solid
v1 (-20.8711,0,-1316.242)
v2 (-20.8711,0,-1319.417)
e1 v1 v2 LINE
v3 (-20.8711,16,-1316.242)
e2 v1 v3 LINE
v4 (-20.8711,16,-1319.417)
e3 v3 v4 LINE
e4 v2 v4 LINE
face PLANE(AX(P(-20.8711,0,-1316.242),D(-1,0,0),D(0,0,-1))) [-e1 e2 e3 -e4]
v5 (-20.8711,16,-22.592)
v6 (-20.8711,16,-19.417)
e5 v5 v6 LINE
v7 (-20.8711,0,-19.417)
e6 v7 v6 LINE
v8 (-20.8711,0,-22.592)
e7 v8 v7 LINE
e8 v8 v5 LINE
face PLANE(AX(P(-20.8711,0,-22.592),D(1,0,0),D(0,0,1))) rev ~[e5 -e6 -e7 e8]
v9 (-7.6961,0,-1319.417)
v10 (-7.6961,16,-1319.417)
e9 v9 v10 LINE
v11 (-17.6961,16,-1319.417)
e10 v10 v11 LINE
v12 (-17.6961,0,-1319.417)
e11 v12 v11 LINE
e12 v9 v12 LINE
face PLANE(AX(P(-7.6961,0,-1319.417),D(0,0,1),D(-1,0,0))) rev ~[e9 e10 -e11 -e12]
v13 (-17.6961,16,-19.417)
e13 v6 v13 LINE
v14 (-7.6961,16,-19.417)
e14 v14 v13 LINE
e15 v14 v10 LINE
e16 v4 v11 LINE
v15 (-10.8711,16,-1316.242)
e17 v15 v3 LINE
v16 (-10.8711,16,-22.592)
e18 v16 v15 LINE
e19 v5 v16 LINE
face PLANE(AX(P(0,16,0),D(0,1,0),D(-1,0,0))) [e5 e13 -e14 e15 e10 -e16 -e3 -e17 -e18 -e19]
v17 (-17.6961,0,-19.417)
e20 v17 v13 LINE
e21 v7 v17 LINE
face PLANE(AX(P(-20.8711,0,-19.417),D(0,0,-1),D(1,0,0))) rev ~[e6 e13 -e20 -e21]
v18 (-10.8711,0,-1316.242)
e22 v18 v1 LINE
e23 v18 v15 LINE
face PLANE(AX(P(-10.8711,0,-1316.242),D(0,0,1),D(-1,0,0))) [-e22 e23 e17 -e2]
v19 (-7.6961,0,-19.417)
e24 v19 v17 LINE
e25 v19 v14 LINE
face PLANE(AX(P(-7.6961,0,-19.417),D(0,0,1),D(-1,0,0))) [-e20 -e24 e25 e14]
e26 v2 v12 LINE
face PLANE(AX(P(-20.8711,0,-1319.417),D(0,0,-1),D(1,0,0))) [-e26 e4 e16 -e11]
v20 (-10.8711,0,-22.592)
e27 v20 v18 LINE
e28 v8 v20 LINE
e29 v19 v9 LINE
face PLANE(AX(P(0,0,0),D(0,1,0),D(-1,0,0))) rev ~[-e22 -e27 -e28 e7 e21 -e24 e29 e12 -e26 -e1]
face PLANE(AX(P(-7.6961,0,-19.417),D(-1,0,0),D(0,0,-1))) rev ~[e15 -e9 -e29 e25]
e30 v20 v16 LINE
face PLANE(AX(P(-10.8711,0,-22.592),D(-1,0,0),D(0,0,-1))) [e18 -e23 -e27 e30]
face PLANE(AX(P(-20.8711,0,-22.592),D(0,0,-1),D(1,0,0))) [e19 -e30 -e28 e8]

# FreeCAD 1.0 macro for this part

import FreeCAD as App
import Part
import Sketcher
from FreeCAD import Vector
Q = App.Units.Quantity


def add_polygon(sketch, points):
    """Adds a closed chain of lines whose ends are joined by coincident constraints."""
    first, n = sketch.GeometryCount, len(points)
    for a, b in zip(points, points[1:] + points[:1]):
        sketch.addGeometry(Part.LineSegment(App.Vector(*a, 0), App.Vector(*b, 0)), False)
    for i in range(n):
        sketch.addConstraint(Sketcher.Constraint("Coincident", first + i, 2, first + (i + 1) % n, 1))

doc = App.newDocument("Part")
body = doc.addObject("PartDesign::Body", "Body")

# Sketch on XZ plane
sketch1 = body.newObject("Sketcher::SketchObject", "Sketch")
sketch1.AttachmentSupport = (doc.getObject("XZ_Plane"), [""])
sketch1.MapMode = "FlatFace"
add_polygon(sketch1, [(-20.9, -19.4), (-7.7, -19.4), (-7.7, -1319.4), (-20.9, -1319.4), (-20.9, -1316.2), (-10.9, -1316.2), (-10.9, -22.6), (-20.9, -22.6)])  # lines 0-7
sketch1.addConstraint(Sketcher.Constraint("Horizontal", 0))
sketch1.addConstraint(Sketcher.Constraint("Vertical", 1))
sketch1.addConstraint(Sketcher.Constraint("Horizontal", 2))
sketch1.addConstraint(Sketcher.Constraint("Vertical", 3))
sketch1.addConstraint(Sketcher.Constraint("Horizontal", 4))
sketch1.addConstraint(Sketcher.Constraint("Vertical", 5))
sketch1.addConstraint(Sketcher.Constraint("Horizontal", 6))
sketch1.addConstraint(Sketcher.Constraint("Vertical", 7))
sketch1.addConstraint(Sketcher.Constraint("Vertical", 3, 2, 6, 2))
sketch1.addConstraint(Sketcher.Constraint("Equal", 3, 7))
sketch1.addConstraint(Sketcher.Constraint("DistanceX", 4, 1, 4, 2, Q("10 mm")))
sketch1.addConstraint(Sketcher.Constraint("DistanceY", 1, 2, 1, 1, Q("1300 mm")))
sketch1.addConstraint(Sketcher.Constraint("DistanceY", 5, 1, 5, 2, Q("1293.65 mm")))
sketch1.addConstraint(Sketcher.Constraint("DistanceX", 0, 1, 0, 2, Q("13.175 mm")))
sketch1.addConstraint(Sketcher.Constraint("DistanceX", 0, 2, -1, 1, Q("7.696 mm")))
sketch1.addConstraint(Sketcher.Constraint("DistanceY", 0, 2, -1, 1, Q("19.417 mm")))
pad1 = body.newObject("PartDesign::Pad", "Pad")
pad1.Profile = sketch1
pad1.Length = 16
pad1.Reversed = True

doc.recompute()
